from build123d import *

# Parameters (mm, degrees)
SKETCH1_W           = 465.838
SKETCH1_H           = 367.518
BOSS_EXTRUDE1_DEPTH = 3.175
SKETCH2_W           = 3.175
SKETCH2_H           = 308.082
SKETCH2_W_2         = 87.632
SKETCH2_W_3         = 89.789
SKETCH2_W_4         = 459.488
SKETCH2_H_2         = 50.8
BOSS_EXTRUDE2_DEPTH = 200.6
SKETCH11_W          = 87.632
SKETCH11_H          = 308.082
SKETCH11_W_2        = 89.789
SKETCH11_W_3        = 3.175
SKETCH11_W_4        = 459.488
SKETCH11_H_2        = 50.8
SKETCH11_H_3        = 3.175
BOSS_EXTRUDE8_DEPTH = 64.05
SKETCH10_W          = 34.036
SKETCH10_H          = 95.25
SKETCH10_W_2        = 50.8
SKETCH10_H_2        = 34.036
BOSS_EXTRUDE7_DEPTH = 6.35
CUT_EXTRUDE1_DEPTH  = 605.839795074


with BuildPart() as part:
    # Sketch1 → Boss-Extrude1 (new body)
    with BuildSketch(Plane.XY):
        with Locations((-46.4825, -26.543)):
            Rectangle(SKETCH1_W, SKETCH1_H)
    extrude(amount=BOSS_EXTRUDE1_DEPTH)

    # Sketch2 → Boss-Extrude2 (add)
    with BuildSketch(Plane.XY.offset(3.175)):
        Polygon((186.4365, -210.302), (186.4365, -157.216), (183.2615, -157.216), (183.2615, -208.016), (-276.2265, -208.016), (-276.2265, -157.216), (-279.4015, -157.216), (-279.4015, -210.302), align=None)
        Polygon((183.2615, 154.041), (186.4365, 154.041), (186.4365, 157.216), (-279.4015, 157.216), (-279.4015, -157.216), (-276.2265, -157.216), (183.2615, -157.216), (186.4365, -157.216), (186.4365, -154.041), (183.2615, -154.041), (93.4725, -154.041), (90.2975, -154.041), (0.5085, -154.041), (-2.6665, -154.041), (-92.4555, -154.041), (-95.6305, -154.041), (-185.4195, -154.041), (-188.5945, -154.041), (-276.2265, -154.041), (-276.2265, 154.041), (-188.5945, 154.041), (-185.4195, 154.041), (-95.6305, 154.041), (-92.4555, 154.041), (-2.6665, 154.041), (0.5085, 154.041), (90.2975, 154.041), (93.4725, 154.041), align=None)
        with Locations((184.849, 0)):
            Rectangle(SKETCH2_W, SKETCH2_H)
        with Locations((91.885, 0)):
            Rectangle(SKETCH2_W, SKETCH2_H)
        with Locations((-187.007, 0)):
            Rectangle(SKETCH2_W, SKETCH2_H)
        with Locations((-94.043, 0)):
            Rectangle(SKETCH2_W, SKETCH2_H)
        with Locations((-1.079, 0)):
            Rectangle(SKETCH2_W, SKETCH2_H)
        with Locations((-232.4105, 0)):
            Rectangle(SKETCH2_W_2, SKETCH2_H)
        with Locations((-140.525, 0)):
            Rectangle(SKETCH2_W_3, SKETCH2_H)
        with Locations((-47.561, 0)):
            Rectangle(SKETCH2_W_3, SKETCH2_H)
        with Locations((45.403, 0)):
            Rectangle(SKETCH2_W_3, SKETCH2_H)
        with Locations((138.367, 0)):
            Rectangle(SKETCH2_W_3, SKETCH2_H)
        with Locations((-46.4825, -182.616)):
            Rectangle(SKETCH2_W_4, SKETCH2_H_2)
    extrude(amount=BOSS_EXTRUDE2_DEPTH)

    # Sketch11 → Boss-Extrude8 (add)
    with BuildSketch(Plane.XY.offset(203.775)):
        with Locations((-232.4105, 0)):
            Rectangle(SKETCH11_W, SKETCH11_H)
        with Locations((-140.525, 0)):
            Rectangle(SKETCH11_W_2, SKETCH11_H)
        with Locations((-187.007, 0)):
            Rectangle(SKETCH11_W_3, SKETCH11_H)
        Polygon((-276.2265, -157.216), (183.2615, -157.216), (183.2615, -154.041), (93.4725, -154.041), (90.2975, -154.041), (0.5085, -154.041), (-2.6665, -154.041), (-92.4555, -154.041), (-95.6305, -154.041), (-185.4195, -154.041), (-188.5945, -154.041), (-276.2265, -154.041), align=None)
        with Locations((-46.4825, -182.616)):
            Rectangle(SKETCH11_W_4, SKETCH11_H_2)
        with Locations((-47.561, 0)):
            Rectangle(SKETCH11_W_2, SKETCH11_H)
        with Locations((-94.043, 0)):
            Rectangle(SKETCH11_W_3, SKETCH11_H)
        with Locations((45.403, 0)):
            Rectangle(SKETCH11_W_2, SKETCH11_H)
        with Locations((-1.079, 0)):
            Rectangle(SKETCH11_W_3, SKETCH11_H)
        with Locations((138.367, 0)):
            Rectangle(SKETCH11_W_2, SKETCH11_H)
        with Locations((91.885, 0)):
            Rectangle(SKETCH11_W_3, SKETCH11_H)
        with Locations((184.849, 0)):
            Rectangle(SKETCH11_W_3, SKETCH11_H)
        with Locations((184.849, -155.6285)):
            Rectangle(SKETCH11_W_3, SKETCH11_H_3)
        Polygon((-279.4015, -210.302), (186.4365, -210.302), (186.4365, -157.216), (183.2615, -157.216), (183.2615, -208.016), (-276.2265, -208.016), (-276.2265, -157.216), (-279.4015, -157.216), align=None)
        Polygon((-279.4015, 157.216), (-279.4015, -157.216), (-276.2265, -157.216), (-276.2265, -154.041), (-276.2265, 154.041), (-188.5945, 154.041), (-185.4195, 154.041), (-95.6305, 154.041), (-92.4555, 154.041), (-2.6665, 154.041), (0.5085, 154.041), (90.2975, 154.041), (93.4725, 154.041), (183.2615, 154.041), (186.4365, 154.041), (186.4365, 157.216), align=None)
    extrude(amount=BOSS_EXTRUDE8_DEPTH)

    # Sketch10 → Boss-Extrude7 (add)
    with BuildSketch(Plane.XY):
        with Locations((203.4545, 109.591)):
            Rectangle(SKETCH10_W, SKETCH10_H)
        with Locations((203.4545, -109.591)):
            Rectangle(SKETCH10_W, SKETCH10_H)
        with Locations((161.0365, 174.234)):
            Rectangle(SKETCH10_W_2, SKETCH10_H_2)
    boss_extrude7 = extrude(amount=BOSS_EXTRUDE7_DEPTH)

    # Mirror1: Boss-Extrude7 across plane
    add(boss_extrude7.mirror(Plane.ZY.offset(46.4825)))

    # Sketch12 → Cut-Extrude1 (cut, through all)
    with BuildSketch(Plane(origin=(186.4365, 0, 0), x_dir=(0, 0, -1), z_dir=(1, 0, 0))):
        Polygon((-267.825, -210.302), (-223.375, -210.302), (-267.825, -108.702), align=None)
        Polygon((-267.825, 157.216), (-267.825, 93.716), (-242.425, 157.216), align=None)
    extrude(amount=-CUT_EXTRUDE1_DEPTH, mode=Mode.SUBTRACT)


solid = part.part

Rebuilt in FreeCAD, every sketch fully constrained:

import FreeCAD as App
import Part
import Sketcher

V = App.Vector
Q = App.Units.Quantity

doc = App.newDocument("Part")
body = doc.addObject("PartDesign::Body", "Body")

# Sketch on XY plane
sketch1 = body.newObject("Sketcher::SketchObject", "Sketch")
sketch1.AttachmentSupport = (doc.getObject("XY_Plane"), [""])
sketch1.MapMode = "FlatFace"
sketch1.addGeometry([
    Part.LineSegment(V(-279.4015, 157.216, 0), V(-279.4015, -210.302, 0)),
    Part.LineSegment(V(-279.4015, -210.302, 0), V(186.4365, -210.302, 0)),
    Part.LineSegment(V(186.4365, -210.302, 0), V(186.4365, 157.216, 0)),
    Part.LineSegment(V(186.4365, 157.216, 0), V(-279.4015, 157.216, 0)),
], False)
sketch1.addConstraint([
    Sketcher.Constraint("Coincident", 0, 2, 1, 1),
    Sketcher.Constraint("Coincident", 1, 2, 2, 1),
    Sketcher.Constraint("Coincident", 2, 2, 3, 1),
    Sketcher.Constraint("Coincident", 3, 2, 0, 1),
    Sketcher.Constraint("Vertical", 0),
    Sketcher.Constraint("Horizontal", 1),
    Sketcher.Constraint("Vertical", 2),
    Sketcher.Constraint("Horizontal", 3),
    Sketcher.Constraint("DistanceX", 1, 1, 1, 2, Q("465.838 mm")),
    Sketcher.Constraint("DistanceY", 0, 2, 0, 1, Q("367.518 mm")),
    Sketcher.Constraint("DistanceX", 0, 2, -1, 1, Q("279.4015 mm")),
    Sketcher.Constraint("DistanceY", 0, 2, -1, 1, Q("210.302 mm")),
])
pad1 = body.newObject("PartDesign::Pad", "Pad")
pad1.Profile = sketch1
pad1.Length = Q("0.125 in")

# Sketch on XY plane
sketch2 = body.newObject("Sketcher::SketchObject", "Sketch001")
sketch2.AttachmentSupport = (doc.getObject("XY_Plane"), [""])
sketch2.MapMode = "FlatFace"
sketch2.AttachmentOffset = App.Placement(V(0, 0, 0.125 * 25.4), App.Rotation())
sketch2.addGeometry([
    Part.LineSegment(V(186.4365, -210.302, 0), V(186.4365, 157.216, 0)),
    Part.LineSegment(V(186.4365, 157.216, 0), V(-279.4015, 157.216, 0)),
    Part.LineSegment(V(-279.4015, 157.216, 0), V(-279.4015, -210.302, 0)),
    Part.LineSegment(V(-279.4015, -210.302, 0), V(186.4365, -210.302, 0)),
], False)
sketch2.addConstraint([
    Sketcher.Constraint("Coincident", 0, 2, 1, 1),
    Sketcher.Constraint("Coincident", 1, 2, 2, 1),
    Sketcher.Constraint("Coincident", 2, 2, 3, 1),
    Sketcher.Constraint("Coincident", 3, 2, 0, 1),
    Sketcher.Constraint("Vertical", 0),
    Sketcher.Constraint("Horizontal", 1),
    Sketcher.Constraint("Vertical", 2),
    Sketcher.Constraint("Horizontal", 3),
    Sketcher.Constraint("DistanceX", 1, 2, 1, 1, Q("465.838 mm")),
    Sketcher.Constraint("DistanceY", 0, 1, 0, 2, Q("367.518 mm")),
    Sketcher.Constraint("DistanceX", -1, 1, 0, 2, Q("186.4365 mm")),
    Sketcher.Constraint("DistanceY", -1, 1, 0, 2, Q("157.216 mm")),
])
pad2 = body.newObject("PartDesign::Pad", "Pad001")
pad2.Profile = sketch2
pad2.Length = 200.6

# Sketch on XY plane
sketch3 = body.newObject("Sketcher::SketchObject", "Sketch002")
sketch3.AttachmentSupport = (doc.getObject("XY_Plane"), [""])
sketch3.MapMode = "FlatFace"
sketch3.AttachmentOffset = App.Placement(V(0, 0, 203.775), App.Rotation())
sketch3.addGeometry([
    Part.LineSegment(V(-279.4015, -210.302, 0), V(186.4365, -210.302, 0)),
    Part.LineSegment(V(186.4365, -210.302, 0), V(186.4365, 157.216, 0)),
    Part.LineSegment(V(186.4365, 157.216, 0), V(-279.4015, 157.216, 0)),
    Part.LineSegment(V(-279.4015, 157.216, 0), V(-279.4015, -210.302, 0)),
], False)
sketch3.addConstraint([
    Sketcher.Constraint("Coincident", 0, 2, 1, 1),
    Sketcher.Constraint("Coincident", 1, 2, 2, 1),
    Sketcher.Constraint("Coincident", 2, 2, 3, 1),
    Sketcher.Constraint("Coincident", 3, 2, 0, 1),
    Sketcher.Constraint("Horizontal", 0),
    Sketcher.Constraint("Vertical", 1),
    Sketcher.Constraint("Horizontal", 2),
    Sketcher.Constraint("Vertical", 3),
    Sketcher.Constraint("DistanceX", 0, 1, 0, 2, Q("465.838 mm")),
    Sketcher.Constraint("DistanceY", 1, 1, 1, 2, Q("367.518 mm")),
    Sketcher.Constraint("DistanceX", -1, 1, 0, 2, Q("186.4365 mm")),
    Sketcher.Constraint("DistanceY", 0, 2, -1, 1, Q("210.302 mm")),
])
pad3 = body.newObject("PartDesign::Pad", "Pad002")
pad3.Profile = sketch3
pad3.Length = 64.05

# Sketch on XY plane
sketch4 = body.newObject("Sketcher::SketchObject", "Sketch003")
sketch4.AttachmentSupport = (doc.getObject("XY_Plane"), [""])
sketch4.MapMode = "FlatFace"
sketch4.addGeometry([
    Part.LineSegment(V(186.4365, 157.216, 0), V(186.4365, 61.966, 0)),  # 0
    Part.LineSegment(V(186.4365, 61.966, 0), V(220.4725, 61.966, 0)),  # 1
    Part.LineSegment(V(220.4725, 61.966, 0), V(220.4725, 157.216, 0)),  # 2
    Part.LineSegment(V(220.4725, 157.216, 0), V(186.4365, 157.216, 0)),  # 3
    Part.LineSegment(V(186.4365, -61.966, 0), V(186.4365, -157.216, 0)),  # 4
    Part.LineSegment(V(186.4365, -157.216, 0), V(220.4725, -157.216, 0)),  # 5
    Part.LineSegment(V(220.4725, -157.216, 0), V(220.4725, -61.966, 0)),  # 6
    Part.LineSegment(V(220.4725, -61.966, 0), V(186.4365, -61.966, 0)),  # 7
    Part.LineSegment(V(135.6365, 191.252, 0), V(135.6365, 157.216, 0)),  # 8
    Part.LineSegment(V(135.6365, 157.216, 0), V(186.4365, 157.216, 0)),  # 9
    Part.LineSegment(V(186.4365, 157.216, 0), V(186.4365, 191.252, 0)),  # 10
    Part.LineSegment(V(186.4365, 191.252, 0), V(135.6365, 191.252, 0)),  # 11
], False)
sketch4.addConstraint([
    Sketcher.Constraint("Coincident", 0, 2, 1, 1),
    Sketcher.Constraint("Coincident", 1, 2, 2, 1),
    Sketcher.Constraint("Coincident", 2, 2, 3, 1),
    Sketcher.Constraint("Coincident", 3, 2, 0, 1),
    Sketcher.Constraint("Coincident", 4, 2, 5, 1),
    Sketcher.Constraint("Coincident", 5, 2, 6, 1),
    Sketcher.Constraint("Coincident", 6, 2, 7, 1),
    Sketcher.Constraint("Coincident", 7, 2, 4, 1),
    Sketcher.Constraint("Coincident", 8, 2, 9, 1),
    Sketcher.Constraint("Coincident", 9, 2, 10, 1),
    Sketcher.Constraint("Coincident", 10, 2, 11, 1),
    Sketcher.Constraint("Coincident", 11, 2, 8, 1),
    Sketcher.Constraint("Vertical", 0),
    Sketcher.Constraint("Horizontal", 1),
    Sketcher.Constraint("Vertical", 2),
    Sketcher.Constraint("Horizontal", 3),
    Sketcher.Constraint("Vertical", 4),
    Sketcher.Constraint("Horizontal", 5),
    Sketcher.Constraint("Vertical", 6),
    Sketcher.Constraint("Horizontal", 7),
    Sketcher.Constraint("Vertical", 8),
    Sketcher.Constraint("Horizontal", 9),
    Sketcher.Constraint("Vertical", 10),
    Sketcher.Constraint("Horizontal", 11),
    Sketcher.Constraint("Coincident", 9, 2, 3, 2),
    Sketcher.Constraint("Symmetric", 3, 2, 4, 2, -1),
    Sketcher.Constraint("Symmetric", 1, 2, 6, 2, -1),
    Sketcher.Constraint("Equal", 7, 8),
    Sketcher.Constraint("DistanceX", 9, 1, 9, 2, Q("2 in")),
    Sketcher.Constraint("DistanceX", 1, 1, 1, 2, Q("1.34 in")),
    Sketcher.Constraint("DistanceY", 0, 2, 0, 1, Q("3.75 in")),
    Sketcher.Constraint("DistanceX", -1, 1, 0, 2, Q("186.4365 mm")),
    Sketcher.Constraint("DistanceY", -1, 1, 0, 2, Q("61.966 mm")),
])
pad4 = body.newObject("PartDesign::Pad", "Pad003")
pad4.Profile = sketch4
pad4.Length = Q("0.25 in")
doc.recompute()

datumplane = body.newObject("PartDesign::Plane", "DatumPlane")
datumplane.AttachmentSupport = (doc.getObject("YZ_Plane"), [""])
datumplane.MapMode = "FlatFace"
datumplane.AttachmentOffset = App.Placement(V(0, 0, -46.4825), App.Rotation())
mirrored = body.newObject("PartDesign::Mirrored", "Mirrored")
mirrored.Originals = [pad4]
mirrored.MirrorPlane = (datumplane, [""])
body.Tip = mirrored

# Sketch on YZ plane
sketch5 = body.newObject("Sketcher::SketchObject", "Sketch004")
sketch5.AttachmentSupport = (doc.getObject("YZ_Plane"), [""])
sketch5.MapMode = "FlatFace"
sketch5.AttachmentOffset = App.Placement(V(0, 0, 186.4365), App.Rotation())
sketch5.addGeometry([
    Part.LineSegment(V(-210.302, 267.825, 0), V(-210.302, 223.375, 0)),  # 0
    Part.LineSegment(V(-210.302, 223.375, 0), V(-108.702, 267.825, 0)),  # 1
    Part.LineSegment(V(-108.702, 267.825, 0), V(-210.302, 267.825, 0)),  # 2
    Part.LineSegment(V(157.216, 267.825, 0), V(93.716, 267.825, 0)),  # 3
    Part.LineSegment(V(93.716, 267.825, 0), V(157.216, 242.425, 0)),  # 4
    Part.LineSegment(V(157.216, 242.425, 0), V(157.216, 267.825, 0)),  # 5
], False)
sketch5.addConstraint([
    Sketcher.Constraint("Coincident", 0, 2, 1, 1),
    Sketcher.Constraint("Coincident", 1, 2, 2, 1),
    Sketcher.Constraint("Coincident", 2, 2, 0, 1),
    Sketcher.Constraint("Coincident", 3, 2, 4, 1),
    Sketcher.Constraint("Coincident", 4, 2, 5, 1),
    Sketcher.Constraint("Coincident", 5, 2, 3, 1),
    Sketcher.Constraint("Vertical", 0),
    Sketcher.Constraint("Horizontal", 2),
    Sketcher.Constraint("Horizontal", 3),
    Sketcher.Constraint("Vertical", 5),
    Sketcher.Constraint("Horizontal", 2, 2, 3, 2),
    Sketcher.Constraint("DistanceX", 2, 2, 2, 1, Q("4 in")),
    Sketcher.Constraint("DistanceY", 5, 1, 5, 2, Q("1 in")),
    Sketcher.Constraint("DistanceX", 3, 2, 3, 1, Q("2.5 in")),
    Sketcher.Constraint("DistanceY", 0, 2, 0, 1, Q("1.75 in")),
    Sketcher.Constraint("DistanceX", 0, 2, -1, 1, Q("210.302 mm")),
    Sketcher.Constraint("DistanceY", -1, 1, 0, 2, Q("223.375 mm")),
    Sketcher.Constraint("DistanceX", -1, 1, 3, 2, Q("93.716 mm")),
])
pocket1 = body.newObject("PartDesign::Pocket", "Pocket")
pocket1.Profile = sketch5
pocket1.Type = "ThroughAll"

doc.recompute()
